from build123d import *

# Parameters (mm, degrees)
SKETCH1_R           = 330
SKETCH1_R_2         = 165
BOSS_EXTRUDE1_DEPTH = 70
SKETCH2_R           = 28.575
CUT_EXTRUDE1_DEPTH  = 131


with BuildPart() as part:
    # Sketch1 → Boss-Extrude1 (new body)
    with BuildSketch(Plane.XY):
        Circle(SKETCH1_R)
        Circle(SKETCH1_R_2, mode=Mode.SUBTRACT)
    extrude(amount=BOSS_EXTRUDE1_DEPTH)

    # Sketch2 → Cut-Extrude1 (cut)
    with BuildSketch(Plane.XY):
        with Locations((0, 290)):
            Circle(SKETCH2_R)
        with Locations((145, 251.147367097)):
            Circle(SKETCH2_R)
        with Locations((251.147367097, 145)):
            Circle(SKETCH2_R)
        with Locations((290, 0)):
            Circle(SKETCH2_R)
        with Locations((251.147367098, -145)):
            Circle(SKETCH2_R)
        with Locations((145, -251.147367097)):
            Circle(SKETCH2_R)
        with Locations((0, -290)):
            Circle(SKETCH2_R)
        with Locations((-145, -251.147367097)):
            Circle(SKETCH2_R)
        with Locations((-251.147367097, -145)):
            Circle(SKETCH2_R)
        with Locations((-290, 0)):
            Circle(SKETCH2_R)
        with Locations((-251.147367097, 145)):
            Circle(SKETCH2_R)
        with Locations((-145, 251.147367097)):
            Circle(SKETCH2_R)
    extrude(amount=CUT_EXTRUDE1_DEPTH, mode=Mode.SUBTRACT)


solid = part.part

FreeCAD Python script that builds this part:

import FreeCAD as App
import Part
import Sketcher
from FreeCAD import Vector
Q = App.Units.Quantity

doc = App.newDocument("Part")
body = doc.addObject("PartDesign::Body", "Body")

# Sketch on XY plane
sketch1 = body.newObject("Sketcher::SketchObject", "Sketch")
sketch1.AttachmentSupport = (doc.getObject("XY_Plane"), [""])
sketch1.MapMode = "FlatFace"
sketch1.addGeometry([
    Part.Circle(Vector(0, 0, 0), Vector(0, 0, 1), 330),
    Part.Circle(Vector(0, 0, 0), Vector(0, 0, 1), 165),
], False)
sketch1.addConstraint([
    Sketcher.Constraint("Coincident", 0, 3, -1, 1),
    Sketcher.Constraint("Coincident", 1, 3, -1, 1),
    Sketcher.Constraint("Diameter", 0, Q("660 mm")),
    Sketcher.Constraint("Diameter", 1, Q("330 mm")),
])
pad1 = body.newObject("PartDesign::Pad", "Pad")
pad1.Profile = sketch1
pad1.Length = 70

# Sketch on XY plane
sketch2 = body.newObject("Sketcher::SketchObject", "Sketch001")
sketch2.AttachmentSupport = (doc.getObject("XY_Plane"), [""])
sketch2.MapMode = "FlatFace"
sketch2.addGeometry([
    Part.Circle(Vector(0, 290, 0), Vector(0, 0, 1), 29),  # 0
    Part.Circle(Vector(145, 251, 0), Vector(0, 0, 1), 29),  # 1
    Part.Circle(Vector(251, 145, 0), Vector(0, 0, 1), 29),  # 2
    Part.Circle(Vector(290, 0, 0), Vector(0, 0, 1), 29),  # 3
    Part.Circle(Vector(251, -145, 0), Vector(0, 0, 1), 29),  # 4
    Part.Circle(Vector(145, -251, 0), Vector(0, 0, 1), 29),  # 5
    Part.Circle(Vector(0, -290, 0), Vector(0, 0, 1), 29),  # 6
    Part.Circle(Vector(-145, -251, 0), Vector(0, 0, 1), 29),  # 7
    Part.Circle(Vector(-251, -145, 0), Vector(0, 0, 1), 29),  # 8
    Part.Circle(Vector(-290, 0, 0), Vector(0, 0, 1), 29),  # 9
    Part.Circle(Vector(-251, 145, 0), Vector(0, 0, 1), 29),  # 10
    Part.Circle(Vector(-145, 251, 0), Vector(0, 0, 1), 29),  # 11
], False)
sketch2.addConstraint([
    Sketcher.Constraint("Equal", 0, 1),
    Sketcher.Constraint("Equal", 1, 2),
    Sketcher.Constraint("Equal", 2, 3),
    Sketcher.Constraint("Equal", 3, 4),
    Sketcher.Constraint("Equal", 4, 5),
    Sketcher.Constraint("Equal", 5, 6),
    Sketcher.Constraint("Equal", 6, 7),
    Sketcher.Constraint("Equal", 7, 8),
    Sketcher.Constraint("Equal", 8, 9),
    Sketcher.Constraint("Equal", 9, 10),
    Sketcher.Constraint("Equal", 10, 11),
    Sketcher.Constraint("Symmetric", 0, 3, 6, 3, -1, 1),
    Sketcher.Constraint("Symmetric", 1, 3, 7, 3, -1, 1),
    Sketcher.Constraint("Symmetric", 2, 3, 8, 3, -1, 1),
    Sketcher.Constraint("Symmetric", 3, 3, 9, 3, -1, 1),
    Sketcher.Constraint("Symmetric", 4, 3, 10, 3, -1, 1),
    Sketcher.Constraint("Symmetric", 5, 3, 11, 3, -1, 1),
    Sketcher.Constraint("Symmetric", 5, 3, 7, 3, -2),
    Sketcher.Constraint("Symmetric", 4, 3, 8, 3, -2),
    Sketcher.Constraint("PointOnObject", 0, 3, -2),
    Sketcher.Constraint("PointOnObject", 3, 3, -1),
    Sketcher.Constraint("Diameter", 0, Q("57.15 mm")),
    Sketcher.Constraint("DistanceY", -1, 1, 0, 3, Q("290 mm")),
    Sketcher.Constraint("DistanceX", -1, 1, 1, 3, Q("145 mm")),
    Sketcher.Constraint("DistanceY", -1, 1, 2, 3, Q("145 mm")),
    Sketcher.Constraint("DistanceX", -1, 1, 3, 3, Q("290 mm")),
    Sketcher.Constraint("DistanceY", -1, 1, 1, 3, Q("251.147367 mm")),
    Sketcher.Constraint("DistanceX", -1, 1, 2, 3, Q("251.147367 mm")),
])
pocket1 = body.newObject("PartDesign::Pocket", "Pocket")
pocket1.Profile = sketch2
pocket1.Length = 131
pocket1.Reversed = True

doc.recompute()
